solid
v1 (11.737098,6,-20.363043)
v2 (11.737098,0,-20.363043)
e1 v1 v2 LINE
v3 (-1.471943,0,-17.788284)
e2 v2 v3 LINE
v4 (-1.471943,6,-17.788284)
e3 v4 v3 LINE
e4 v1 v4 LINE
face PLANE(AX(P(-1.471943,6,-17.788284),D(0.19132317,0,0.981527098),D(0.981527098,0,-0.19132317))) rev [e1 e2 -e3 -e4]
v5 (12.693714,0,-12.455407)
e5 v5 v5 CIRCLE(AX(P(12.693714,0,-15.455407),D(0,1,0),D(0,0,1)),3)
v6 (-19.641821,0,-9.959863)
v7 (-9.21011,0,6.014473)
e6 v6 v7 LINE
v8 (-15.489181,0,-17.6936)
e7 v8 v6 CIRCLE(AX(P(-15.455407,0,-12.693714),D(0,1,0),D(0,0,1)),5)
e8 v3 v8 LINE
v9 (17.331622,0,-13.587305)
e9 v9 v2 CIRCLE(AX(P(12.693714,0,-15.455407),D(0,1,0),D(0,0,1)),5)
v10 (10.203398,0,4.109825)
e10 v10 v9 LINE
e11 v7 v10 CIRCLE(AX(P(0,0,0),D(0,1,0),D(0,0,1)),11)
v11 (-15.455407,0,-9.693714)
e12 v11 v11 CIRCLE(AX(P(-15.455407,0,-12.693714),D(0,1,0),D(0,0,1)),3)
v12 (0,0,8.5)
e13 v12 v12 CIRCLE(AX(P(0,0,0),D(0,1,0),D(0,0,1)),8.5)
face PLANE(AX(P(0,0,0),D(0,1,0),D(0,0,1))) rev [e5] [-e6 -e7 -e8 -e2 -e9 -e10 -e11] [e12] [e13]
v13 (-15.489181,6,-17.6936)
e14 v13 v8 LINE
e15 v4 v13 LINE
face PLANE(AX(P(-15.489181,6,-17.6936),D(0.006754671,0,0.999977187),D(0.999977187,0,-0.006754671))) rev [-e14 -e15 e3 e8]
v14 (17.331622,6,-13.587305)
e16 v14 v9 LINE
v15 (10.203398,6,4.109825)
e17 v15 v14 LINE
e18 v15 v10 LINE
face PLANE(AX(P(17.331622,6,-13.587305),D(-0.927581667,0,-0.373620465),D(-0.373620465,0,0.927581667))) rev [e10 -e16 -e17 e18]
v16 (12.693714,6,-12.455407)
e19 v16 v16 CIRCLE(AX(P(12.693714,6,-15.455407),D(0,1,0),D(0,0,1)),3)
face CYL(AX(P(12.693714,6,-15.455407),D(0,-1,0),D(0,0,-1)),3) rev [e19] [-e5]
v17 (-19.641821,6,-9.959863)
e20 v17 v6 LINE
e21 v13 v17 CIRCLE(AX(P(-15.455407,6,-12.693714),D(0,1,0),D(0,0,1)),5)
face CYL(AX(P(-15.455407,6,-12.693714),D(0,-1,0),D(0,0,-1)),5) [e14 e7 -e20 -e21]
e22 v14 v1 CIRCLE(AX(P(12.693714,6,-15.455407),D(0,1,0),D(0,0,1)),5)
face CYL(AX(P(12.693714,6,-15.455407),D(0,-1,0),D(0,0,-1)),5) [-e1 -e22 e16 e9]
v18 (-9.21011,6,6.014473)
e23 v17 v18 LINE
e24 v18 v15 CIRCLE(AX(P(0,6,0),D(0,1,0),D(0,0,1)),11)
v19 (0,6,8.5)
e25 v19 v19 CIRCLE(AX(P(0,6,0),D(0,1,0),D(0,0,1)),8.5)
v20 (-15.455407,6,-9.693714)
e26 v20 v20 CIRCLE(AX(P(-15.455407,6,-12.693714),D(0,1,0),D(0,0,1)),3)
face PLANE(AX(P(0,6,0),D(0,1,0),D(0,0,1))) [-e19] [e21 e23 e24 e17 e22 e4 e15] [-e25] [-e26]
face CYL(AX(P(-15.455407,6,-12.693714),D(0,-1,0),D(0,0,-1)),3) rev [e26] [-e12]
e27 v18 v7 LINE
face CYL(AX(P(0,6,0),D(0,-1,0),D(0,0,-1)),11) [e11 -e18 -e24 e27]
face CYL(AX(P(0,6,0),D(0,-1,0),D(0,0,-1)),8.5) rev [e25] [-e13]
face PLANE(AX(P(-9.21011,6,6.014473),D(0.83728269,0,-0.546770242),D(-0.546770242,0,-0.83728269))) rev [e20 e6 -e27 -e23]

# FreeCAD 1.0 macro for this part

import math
import FreeCAD as App
import Part
import Sketcher
from FreeCAD import Vector

doc = App.newDocument("Part")
params = doc.addObject("Spreadsheet::Sheet", "Params")
for row, (alias, value) in enumerate([
    ("sketch1_diameter", "17 mm"),
    ("sketch1_diameter2", "6 mm"),
    ("sketch1_diameter3", "6 mm"),
    ("sketch1_radius", "11 mm"),
    ("sketch1_radius2", "5 mm"),
    ("pad1_length", "6 mm"),
], start=1):
    params.set(f"A{row}", alias)
    params.set(f"B{row}", "=" + value)
    params.setAlias(f"B{row}", alias)

body = doc.addObject("PartDesign::Body", "Body")

# Sketch on XZ plane
sketch1 = doc.addObject("Sketcher::SketchObject", "Sketch")
body.addObject(sketch1)
sketch1.AttachmentSupport = (doc.XZ_Plane, [""])
sketch1.MapMode = "FlatFace"
sketch1.addGeometry([
    Part.LineSegment(Vector(-19.641821, -9.959863, 0), Vector(-9.21011, 6.014473, 0)),  # 0
    Part.ArcOfCircle(Part.Circle(Vector(0, 0, 0), Vector(0, 0, 1), 11), math.radians(21.939075), math.radians(146.854281)),  # 1
    Part.LineSegment(Vector(10.203398, 4.109825, 0), Vector(17.331622, -13.587305, 0)),  # 2
    Part.ArcOfCircle(Part.Circle(Vector(12.693714, -15.455407, 0), Vector(0, 0, 1), 5), math.radians(-101.030013), math.radians(21.939075)),  # 3
    Part.LineSegment(Vector(11.737098, -20.363043, 0), Vector(-1.471943, -17.788284, 0)),  # 4
    Part.LineSegment(Vector(-1.471943, -17.788284, 0), Vector(-15.489181, -17.6936, 0)),  # 5
    Part.ArcOfCircle(Part.Circle(Vector(-15.455407, -12.693714, 0), Vector(0, 0, 1), 5), math.radians(146.854281), math.radians(269.612983)),  # 6
    Part.Circle(Vector(0, 0, 0), Vector(0, 0, 1), 8.5),  # 7
    Part.Circle(Vector(12.693714, -15.455407, 0), Vector(0, 0, 1), 3),  # 8
    Part.Circle(Vector(-15.455407, -12.693714, 0), Vector(0, 0, 1), 3),  # 9
], False)
sketch1.addConstraint([
    Sketcher.Constraint("Coincident", 0, 2, 1, 2),
    Sketcher.Constraint("Coincident", 1, 1, 2, 1),
    Sketcher.Constraint("Coincident", 2, 2, 3, 2),
    Sketcher.Constraint("Coincident", 3, 1, 4, 1),
    Sketcher.Constraint("Coincident", 4, 2, 5, 1),
    Sketcher.Constraint("Coincident", 5, 2, 6, 2),
    Sketcher.Constraint("Coincident", 6, 1, 0, 1),
    Sketcher.Constraint("Coincident", 1, 3, -1, 1),
    Sketcher.Constraint("Coincident", 7, 3, -1, 1),
    Sketcher.Constraint("Coincident", 8, 3, 3, 3),
    Sketcher.Constraint("Coincident", 9, 3, 6, 3),
    Sketcher.Constraint("Diameter", 7, 17.0),
    Sketcher.Constraint("Diameter", 8, 6.0),
    Sketcher.Constraint("Diameter", 9, 6.0),
    Sketcher.Constraint("Radius", 1, 11.0),
    Sketcher.Constraint("Radius", 3, 5.0),
    Sketcher.Constraint("Radius", 6, 5.0),
    Sketcher.Constraint("DistanceX", -1, 1, 1, 1, 10.203398),
    Sketcher.Constraint("DistanceX", -1, 1, 3, 1, 11.737098),
    Sketcher.Constraint("DistanceY", 5, 2, -1, 1, 17.6936),
    Sketcher.Constraint("DistanceX", 0, 2, -1, 1, 9.21011),
    Sketcher.Constraint("DistanceX", 5, 2, -1, 1, 15.489181),
    Sketcher.Constraint("DistanceX", 6, 1, -1, 1, 19.641821),
    Sketcher.Constraint("DistanceX", 6, 3, 3, 3, 28.149122),
    Sketcher.Constraint("DistanceY", 3, 3, 0, 2, 21.46988),
    Sketcher.Constraint("DistanceX", 3, 3, 2, 2, 4.637908),
    Sketcher.Constraint("DistanceX", 4, 2, 3, 1, 13.209041),
    Sketcher.Constraint("DistanceY", 3, 1, 4, 2, 2.574759),
    Sketcher.Constraint("DistanceY", 4, 2, 6, 3, 5.09457),
])
sketch1.setExpression("Constraints[11]", "Params.sketch1_diameter")
sketch1.setExpression("Constraints[12]", "Params.sketch1_diameter2")
sketch1.setExpression("Constraints[13]", "Params.sketch1_diameter3")
sketch1.setExpression("Constraints[14]", "Params.sketch1_radius")
sketch1.setExpression("Constraints[15]", "Params.sketch1_radius2")
pad1 = doc.addObject("PartDesign::Pad", "Pad")
body.addObject(pad1)
pad1.Profile = sketch1
pad1.setExpression("Length", "Params.pad1_length")
pad1.Reversed = True

doc.recompute()
